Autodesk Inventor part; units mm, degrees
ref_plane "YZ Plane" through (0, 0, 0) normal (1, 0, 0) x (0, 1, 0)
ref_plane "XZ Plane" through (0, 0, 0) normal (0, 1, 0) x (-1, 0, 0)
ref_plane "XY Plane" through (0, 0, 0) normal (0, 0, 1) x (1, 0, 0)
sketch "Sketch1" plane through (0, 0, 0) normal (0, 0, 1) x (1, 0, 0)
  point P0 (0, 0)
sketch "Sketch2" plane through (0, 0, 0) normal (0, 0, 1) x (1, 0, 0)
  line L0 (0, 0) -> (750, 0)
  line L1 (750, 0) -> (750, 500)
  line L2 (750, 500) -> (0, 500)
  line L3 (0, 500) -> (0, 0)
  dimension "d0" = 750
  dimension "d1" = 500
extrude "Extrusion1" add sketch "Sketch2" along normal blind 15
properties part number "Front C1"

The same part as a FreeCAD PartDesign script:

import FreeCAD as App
import Part
import Sketcher
from FreeCAD import Vector

doc = App.newDocument("Part")
body = doc.addObject("PartDesign::Body", "Body")

# Sketch on XY plane
sketch1 = doc.addObject("Sketcher::SketchObject", "Sketch")
body.addObject(sketch1)
sketch1.AttachmentSupport = (doc.XY_Plane, [""])
sketch1.MapMode = "FlatFace"
sketch1.addGeometry(Part.LineSegment(Vector(0, 500, 0), Vector(0, 0, 0)), False)
sketch1.addGeometry(Part.LineSegment(Vector(0, 0, 0), Vector(750, 0, 0)), False)
sketch1.addGeometry(Part.LineSegment(Vector(750, 0, 0), Vector(750, 500, 0)), False)
sketch1.addGeometry(Part.LineSegment(Vector(750, 500, 0), Vector(0, 500, 0)), False)
sketch1.addConstraint(Sketcher.Constraint("Coincident", 0, 2, 1, 1))
sketch1.addConstraint(Sketcher.Constraint("Coincident", 1, 2, 2, 1))
sketch1.addConstraint(Sketcher.Constraint("Coincident", 2, 2, 3, 1))
sketch1.addConstraint(Sketcher.Constraint("Coincident", 3, 2, 0, 1))
sketch1.addConstraint(Sketcher.Constraint("Vertical", 0))
sketch1.addConstraint(Sketcher.Constraint("Horizontal", 1))
sketch1.addConstraint(Sketcher.Constraint("Vertical", 2))
sketch1.addConstraint(Sketcher.Constraint("Horizontal", 3))
sketch1.addConstraint(Sketcher.Constraint("Coincident", 0, 2, -1, 1))
sketch1.addConstraint(Sketcher.Constraint("DistanceX", 1, 1, 1, 2, 750.0))
sketch1.addConstraint(Sketcher.Constraint("DistanceY", 0, 2, 0, 1, 500.0))
pad1 = doc.addObject("PartDesign::Pad", "Pad")
body.addObject(pad1)
pad1.Profile = sketch1
pad1.Length = 15

doc.recompute()
